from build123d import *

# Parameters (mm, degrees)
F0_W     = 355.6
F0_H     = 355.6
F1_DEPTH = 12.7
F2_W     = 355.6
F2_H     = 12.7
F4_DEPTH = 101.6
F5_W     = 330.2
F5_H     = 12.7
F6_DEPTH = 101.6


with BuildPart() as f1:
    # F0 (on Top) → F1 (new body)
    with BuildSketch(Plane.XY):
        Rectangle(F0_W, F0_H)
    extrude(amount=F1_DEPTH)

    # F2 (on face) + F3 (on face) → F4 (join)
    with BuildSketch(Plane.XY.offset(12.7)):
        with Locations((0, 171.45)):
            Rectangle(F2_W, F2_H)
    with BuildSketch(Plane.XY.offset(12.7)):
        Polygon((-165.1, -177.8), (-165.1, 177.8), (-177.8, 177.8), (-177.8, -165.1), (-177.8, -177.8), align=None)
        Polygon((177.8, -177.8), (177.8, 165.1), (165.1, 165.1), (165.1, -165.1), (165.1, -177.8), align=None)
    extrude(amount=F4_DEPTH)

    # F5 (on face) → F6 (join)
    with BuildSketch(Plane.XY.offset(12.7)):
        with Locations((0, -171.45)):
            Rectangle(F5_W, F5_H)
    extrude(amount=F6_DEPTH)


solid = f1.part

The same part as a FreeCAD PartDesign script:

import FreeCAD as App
import Part
import Sketcher
Q = App.Units.Quantity


def add_polygon(sketch, points):
    """Adds a closed chain of lines whose ends are joined by coincident constraints."""
    first, n = sketch.GeometryCount, len(points)
    for a, b in zip(points, points[1:] + points[:1]):
        sketch.addGeometry(Part.LineSegment(App.Vector(*a, 0), App.Vector(*b, 0)), False)
    for i in range(n):
        sketch.addConstraint(Sketcher.Constraint("Coincident", first + i, 2, first + (i + 1) % n, 1))

doc = App.newDocument("Part")
body = doc.addObject("PartDesign::Body", "Body")

# Sketch on XY plane
sketch1 = doc.addObject("Sketcher::SketchObject", "Sketch")
body.addObject(sketch1)
sketch1.AttachmentSupport = (doc.XY_Plane, [""])
sketch1.MapMode = "FlatFace"
add_polygon(sketch1, [(-178, 178), (-178, -178), (178, -178), (178, 178)])  # lines 0-3
sketch1.addConstraint([
    Sketcher.Constraint("Vertical", 0),
    Sketcher.Constraint("Horizontal", 1),
    Sketcher.Constraint("Vertical", 2),
    Sketcher.Constraint("Horizontal", 3),
    Sketcher.Constraint("Symmetric", 0, 2, 2, 2, -1, 1),
    Sketcher.Constraint("Equal", 3, 0),
    Sketcher.Constraint("DistanceX", 1, 1, 1, 2, Q("14 in")),
])
pad1 = doc.addObject("PartDesign::Pad", "Pad")
body.addObject(pad1)
pad1.Profile = sketch1
pad1.Length = Q("0.5 in")

# Sketch on XY plane
sketch2 = doc.addObject("Sketcher::SketchObject", "Sketch001")
body.addObject(sketch2)
sketch2.AttachmentSupport = (doc.XY_Plane, [""])
sketch2.MapMode = "FlatFace"
sketch2.AttachmentOffset = App.Placement(App.Vector(0, 0, 0.5 * 25.4), App.Rotation())
add_polygon(sketch2, [(-178, 178), (-178, -178), (-165, -178), (-165, 165), (165, 165), (165, -178), (178, -178), (178, 178)])  # lines 0-7
sketch2.addConstraint([
    Sketcher.Constraint("Vertical", 0),
    Sketcher.Constraint("Horizontal", 1),
    Sketcher.Constraint("Vertical", 2),
    Sketcher.Constraint("Horizontal", 3),
    Sketcher.Constraint("Vertical", 4),
    Sketcher.Constraint("Horizontal", 5),
    Sketcher.Constraint("Vertical", 6),
    Sketcher.Constraint("Horizontal", 7),
    Sketcher.Constraint("Symmetric", 0, 2, 6, 2, -1, 1),
    Sketcher.Constraint("Symmetric", 1, 2, 4, 2, -2),
    Sketcher.Constraint("Equal", 7, 0),
    Sketcher.Constraint("DistanceX", 3, 1, 3, 2, Q("13 in")),
    Sketcher.Constraint("DistanceX", 7, 2, 7, 1, Q("14 in")),
    Sketcher.Constraint("DistanceY", 2, 1, 2, 2, Q("13.5 in")),
])
pad2 = doc.addObject("PartDesign::Pad", "Pad001")
body.addObject(pad2)
pad2.Profile = sketch2
pad2.Length = Q("4 in")

# Sketch on XY plane
sketch3 = doc.addObject("Sketcher::SketchObject", "Sketch002")
body.addObject(sketch3)
sketch3.AttachmentSupport = (doc.XY_Plane, [""])
sketch3.MapMode = "FlatFace"
sketch3.AttachmentOffset = App.Placement(App.Vector(0, 0, 0.5 * 25.4), App.Rotation())
add_polygon(sketch3, [(-165, -165), (-165, -178), (165, -178), (165, -165)])  # lines 0-3
sketch3.addConstraint([
    Sketcher.Constraint("Vertical", 0),
    Sketcher.Constraint("Horizontal", 1),
    Sketcher.Constraint("Vertical", 2),
    Sketcher.Constraint("Horizontal", 3),
    Sketcher.Constraint("DistanceX", 1, 1, 1, 2, Q("13 in")),
    Sketcher.Constraint("DistanceY", 0, 2, 0, 1, Q("0.5 in")),
    Sketcher.Constraint("DistanceY", 0, 2, -1, 1, Q("7 in")),
    Sketcher.Constraint("DistanceX", 0, 2, -1, 1, Q("6.5 in")),
])
pad3 = doc.addObject("PartDesign::Pad", "Pad002")
body.addObject(pad3)
pad3.Profile = sketch3
pad3.Length = Q("4 in")

doc.recompute()
